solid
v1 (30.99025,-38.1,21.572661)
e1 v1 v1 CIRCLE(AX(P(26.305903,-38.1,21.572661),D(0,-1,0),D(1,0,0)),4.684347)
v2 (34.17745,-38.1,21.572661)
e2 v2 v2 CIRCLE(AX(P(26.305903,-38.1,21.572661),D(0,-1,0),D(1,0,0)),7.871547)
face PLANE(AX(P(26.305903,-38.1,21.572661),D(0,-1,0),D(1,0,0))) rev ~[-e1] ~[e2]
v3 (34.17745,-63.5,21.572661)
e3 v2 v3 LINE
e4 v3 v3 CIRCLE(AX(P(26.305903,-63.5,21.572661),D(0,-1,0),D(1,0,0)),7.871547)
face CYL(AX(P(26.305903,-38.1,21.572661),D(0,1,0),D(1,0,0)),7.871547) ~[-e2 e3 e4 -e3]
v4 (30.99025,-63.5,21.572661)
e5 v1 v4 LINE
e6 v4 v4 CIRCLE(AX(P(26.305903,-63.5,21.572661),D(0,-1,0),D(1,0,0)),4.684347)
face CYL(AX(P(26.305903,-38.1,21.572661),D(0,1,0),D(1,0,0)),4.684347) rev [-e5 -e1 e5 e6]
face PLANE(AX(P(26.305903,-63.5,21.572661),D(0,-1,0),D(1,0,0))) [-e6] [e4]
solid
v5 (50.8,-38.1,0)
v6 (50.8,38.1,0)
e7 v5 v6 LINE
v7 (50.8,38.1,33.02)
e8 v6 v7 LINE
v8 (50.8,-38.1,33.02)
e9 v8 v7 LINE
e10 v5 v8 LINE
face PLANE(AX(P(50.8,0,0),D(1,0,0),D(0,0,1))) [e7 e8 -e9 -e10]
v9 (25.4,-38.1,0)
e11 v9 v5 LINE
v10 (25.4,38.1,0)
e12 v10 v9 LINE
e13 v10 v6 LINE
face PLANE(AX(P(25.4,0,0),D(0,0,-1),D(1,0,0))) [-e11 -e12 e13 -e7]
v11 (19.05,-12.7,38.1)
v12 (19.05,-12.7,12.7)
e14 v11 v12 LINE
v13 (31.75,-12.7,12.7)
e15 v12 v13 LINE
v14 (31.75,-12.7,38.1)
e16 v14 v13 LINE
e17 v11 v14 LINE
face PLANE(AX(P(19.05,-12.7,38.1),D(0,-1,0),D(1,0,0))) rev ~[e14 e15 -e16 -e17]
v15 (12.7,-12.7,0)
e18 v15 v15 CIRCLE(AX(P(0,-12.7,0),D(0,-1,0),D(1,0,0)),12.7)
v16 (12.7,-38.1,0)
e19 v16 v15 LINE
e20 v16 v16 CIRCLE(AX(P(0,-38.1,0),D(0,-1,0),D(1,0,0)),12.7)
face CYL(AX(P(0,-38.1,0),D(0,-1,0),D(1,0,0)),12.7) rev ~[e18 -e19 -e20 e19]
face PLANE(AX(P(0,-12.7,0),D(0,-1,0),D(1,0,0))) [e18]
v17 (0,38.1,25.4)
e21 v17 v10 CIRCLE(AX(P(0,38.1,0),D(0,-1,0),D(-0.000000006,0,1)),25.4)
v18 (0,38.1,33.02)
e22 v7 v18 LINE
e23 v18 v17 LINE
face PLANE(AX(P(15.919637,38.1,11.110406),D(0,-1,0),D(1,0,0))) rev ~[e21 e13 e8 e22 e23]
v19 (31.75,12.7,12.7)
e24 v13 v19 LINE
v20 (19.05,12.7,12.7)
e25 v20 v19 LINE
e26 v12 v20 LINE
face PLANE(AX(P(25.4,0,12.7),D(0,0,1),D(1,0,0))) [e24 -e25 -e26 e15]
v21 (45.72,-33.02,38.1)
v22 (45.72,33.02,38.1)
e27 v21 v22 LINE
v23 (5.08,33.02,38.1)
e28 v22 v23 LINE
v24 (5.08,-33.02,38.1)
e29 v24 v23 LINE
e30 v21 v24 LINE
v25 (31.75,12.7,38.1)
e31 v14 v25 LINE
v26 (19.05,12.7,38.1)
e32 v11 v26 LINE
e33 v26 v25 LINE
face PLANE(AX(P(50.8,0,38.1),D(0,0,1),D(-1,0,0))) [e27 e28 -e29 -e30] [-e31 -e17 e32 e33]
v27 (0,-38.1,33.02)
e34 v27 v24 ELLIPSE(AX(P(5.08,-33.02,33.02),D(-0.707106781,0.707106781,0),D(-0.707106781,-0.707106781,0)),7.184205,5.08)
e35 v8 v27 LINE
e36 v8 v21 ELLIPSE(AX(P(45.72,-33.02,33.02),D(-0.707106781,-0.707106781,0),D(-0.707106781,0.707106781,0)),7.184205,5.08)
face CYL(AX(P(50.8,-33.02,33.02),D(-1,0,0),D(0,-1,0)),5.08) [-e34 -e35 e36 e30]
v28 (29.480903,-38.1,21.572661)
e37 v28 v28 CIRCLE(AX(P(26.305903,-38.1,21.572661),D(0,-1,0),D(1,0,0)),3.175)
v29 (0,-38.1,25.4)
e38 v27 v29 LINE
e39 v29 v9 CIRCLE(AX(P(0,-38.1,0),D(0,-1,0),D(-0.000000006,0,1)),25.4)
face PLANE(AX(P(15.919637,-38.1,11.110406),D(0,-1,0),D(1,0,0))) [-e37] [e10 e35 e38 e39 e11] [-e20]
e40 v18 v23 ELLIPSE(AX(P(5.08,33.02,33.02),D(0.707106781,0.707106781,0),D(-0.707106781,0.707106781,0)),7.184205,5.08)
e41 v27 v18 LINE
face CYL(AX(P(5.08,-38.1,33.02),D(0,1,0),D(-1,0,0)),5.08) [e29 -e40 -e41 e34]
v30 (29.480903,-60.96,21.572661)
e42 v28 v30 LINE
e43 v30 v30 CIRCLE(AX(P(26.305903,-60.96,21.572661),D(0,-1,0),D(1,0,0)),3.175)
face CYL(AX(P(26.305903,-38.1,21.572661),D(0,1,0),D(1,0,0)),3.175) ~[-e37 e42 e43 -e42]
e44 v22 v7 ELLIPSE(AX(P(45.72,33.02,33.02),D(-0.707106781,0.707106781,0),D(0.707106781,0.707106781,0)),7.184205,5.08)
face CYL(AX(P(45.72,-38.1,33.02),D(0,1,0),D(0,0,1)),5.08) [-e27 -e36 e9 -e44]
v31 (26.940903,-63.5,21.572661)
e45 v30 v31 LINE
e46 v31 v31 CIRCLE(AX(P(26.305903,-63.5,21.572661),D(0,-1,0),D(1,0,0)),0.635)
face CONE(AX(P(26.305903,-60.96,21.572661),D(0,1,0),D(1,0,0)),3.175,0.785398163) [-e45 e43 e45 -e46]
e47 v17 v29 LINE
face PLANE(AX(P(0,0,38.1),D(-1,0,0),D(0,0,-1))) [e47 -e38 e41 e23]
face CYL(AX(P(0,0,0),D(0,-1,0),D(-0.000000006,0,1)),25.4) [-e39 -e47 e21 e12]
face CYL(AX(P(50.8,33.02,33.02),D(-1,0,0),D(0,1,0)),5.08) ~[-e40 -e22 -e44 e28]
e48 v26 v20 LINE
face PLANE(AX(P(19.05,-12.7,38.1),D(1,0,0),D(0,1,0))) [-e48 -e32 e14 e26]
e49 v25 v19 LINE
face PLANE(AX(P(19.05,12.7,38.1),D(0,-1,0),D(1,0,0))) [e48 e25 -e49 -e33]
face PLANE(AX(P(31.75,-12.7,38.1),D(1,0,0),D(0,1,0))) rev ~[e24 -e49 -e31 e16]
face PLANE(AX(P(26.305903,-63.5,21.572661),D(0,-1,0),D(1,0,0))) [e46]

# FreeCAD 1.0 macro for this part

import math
import FreeCAD as App
import Part
import Sketcher
Q = App.Units.Quantity


def edges_at(feature, points):
    """Names of the edges that pass closest to the given points."""
    edges = feature.Shape.Edges
    near = lambda p: min(range(len(edges)), key=lambda i: edges[i].distToShape(Part.Vertex(*p))[0])
    return sorted({f"Edge{near(p) + 1}" for p in points})

doc = App.newDocument("Part")
body = doc.addObject("PartDesign::Body", "Body")

sketch1 = body.newObject("Sketcher::SketchObject", "Sketch")
sketch1.AttachmentSupport = (doc.getObject("XZ_Plane"), [""])
sketch1.MapMode = "FlatFace"
sketch1.addGeometry([
    Part.LineSegment(App.Vector(0, 38, 0), App.Vector(0, 25, 0)),
    Part.ArcOfCircle(Part.Circle(App.Vector(0, 0, 0), App.Vector(0, 0, 1), 25), math.radians(90), math.radians(360)),
    Part.LineSegment(App.Vector(25, 0, 0), App.Vector(51, 0, 0)),
    Part.LineSegment(App.Vector(51, 0, 0), App.Vector(51, 38, 0)),
    Part.LineSegment(App.Vector(51, 38, 0), App.Vector(0, 38, 0)),
], False)
sketch1.addConstraint([
    Sketcher.Constraint("Coincident", 0, 2, 1, 1),
    Sketcher.Constraint("Coincident", 1, 2, 2, 1),
    Sketcher.Constraint("Coincident", 2, 2, 3, 1),
    Sketcher.Constraint("Coincident", 3, 2, 4, 1),
    Sketcher.Constraint("Coincident", 4, 2, 0, 1),
    Sketcher.Constraint("Vertical", 0),
    Sketcher.Constraint("Horizontal", 2),
    Sketcher.Constraint("Vertical", 3),
    Sketcher.Constraint("Horizontal", 4),
    Sketcher.Constraint("Coincident", 1, 3, -1, 1),
    Sketcher.Constraint("PointOnObject", 0, 2, -2),
    Sketcher.Constraint("PointOnObject", 1, 2, -1),
    Sketcher.Constraint("Radius", 1, Q("1 in")),
    Sketcher.Constraint("DistanceX", 2, 1, 2, 2, Q("1 in")),
    Sketcher.Constraint("DistanceY", 0, 2, 0, 1, Q("0.5 in")),
])
pad1 = body.newObject("PartDesign::Pad", "Pad")
pad1.Profile = sketch1
pad1.Length = Q("3 in")
pad1.Midplane = True

sketch2 = body.newObject("Sketcher::SketchObject", "Sketch001")
sketch2.AttachmentSupport = (doc.getObject("XY_Plane"), [""])
sketch2.MapMode = "FlatFace"
sketch2.AttachmentOffset = App.Placement(App.Vector(0, 0, 1.5 * 25.4), App.Rotation())
sketch2.addGeometry([
    Part.LineSegment(App.Vector(19, 13, 0), App.Vector(19, -13, 0)),
    Part.LineSegment(App.Vector(19, -13, 0), App.Vector(32, -13, 0)),
    Part.LineSegment(App.Vector(32, -13, 0), App.Vector(32, 13, 0)),
    Part.LineSegment(App.Vector(32, 13, 0), App.Vector(19, 13, 0)),
], False)
sketch2.addConstraint([
    Sketcher.Constraint("Coincident", 0, 2, 1, 1),
    Sketcher.Constraint("Coincident", 1, 2, 2, 1),
    Sketcher.Constraint("Coincident", 2, 2, 3, 1),
    Sketcher.Constraint("Coincident", 3, 2, 0, 1),
    Sketcher.Constraint("Vertical", 0),
    Sketcher.Constraint("Horizontal", 1),
    Sketcher.Constraint("Vertical", 2),
    Sketcher.Constraint("Horizontal", 3),
    Sketcher.Constraint("DistanceY", 0, 2, 0, 1, Q("1 in")),
    Sketcher.Constraint("DistanceX", 1, 1, 1, 2, Q("0.5 in")),
    Sketcher.Constraint("DistanceY", 0, 2, -1, 1, Q("0.5 in")),
    Sketcher.Constraint("DistanceX", -1, 1, 0, 2, Q("0.75 in")),
])
pocket1 = body.newObject("PartDesign::Pocket", "Pocket")
pocket1.Profile = sketch2
pocket1.Length = Q("1 in")
doc.recompute()

fillet = body.newObject("PartDesign::Fillet", "Fillet")
fillet.Base = (pocket1, edges_at(pocket1, [
    (25.4, -38.1, 38.1),
    (50.8, 0, 38.1),
    (25.4, 38.1, 38.1),
    (0, 0, 38.1),
]))
fillet.Radius = Q("0.2 in")

sketch3 = body.newObject("Sketcher::SketchObject", "Sketch002")
sketch3.AttachmentSupport = (doc.getObject("XZ_Plane"), [""])
sketch3.MapMode = "FlatFace"
sketch3.AttachmentOffset = App.Placement(App.Vector(0, 0, 1.5 * 25.4), App.Rotation())
sketch3.addGeometry(Part.Circle(App.Vector(0, 0, 0), App.Vector(0, 0, 1), 13), False)
sketch3.addConstraint([
    Sketcher.Constraint("Coincident", 0, 3, -1, 1),
    Sketcher.Constraint("Diameter", 0, Q("1 in")),
])
pocket2 = body.newObject("PartDesign::Pocket", "Pocket001")
pocket2.Profile = sketch3
pocket2.Length = Q("1 in")

sketch4 = body.newObject("Sketcher::SketchObject", "Sketch003")
sketch4.AttachmentSupport = (doc.getObject("XZ_Plane"), [""])
sketch4.MapMode = "FlatFace"
sketch4.AttachmentOffset = App.Placement(App.Vector(0, 0, 1.5 * 25.4), App.Rotation())
sketch4.addGeometry(Part.Circle(App.Vector(26.3, 21.6, 0), App.Vector(0, 0, 1), 3.2), False)
sketch4.addConstraint([
    Sketcher.Constraint("Diameter", 0, Q("0.25 in")),
    Sketcher.Constraint("DistanceY", -1, 1, 0, 3, Q("21.572661 mm")),
    Sketcher.Constraint("DistanceX", -1, 1, 0, 3, Q("26.305903 mm")),
])
pad2 = body.newObject("PartDesign::Pad", "Pad001")
pad2.Profile = sketch4
pad2.Length = Q("1 in")
doc.recompute()

chamfer = body.newObject("PartDesign::Chamfer", "Chamfer")
chamfer.Base = (pad2, edges_at(pad2, [(23.131, -63.5, 21.573)]))
chamfer.Size = Q("0.1 in")
body2 = doc.addObject("PartDesign::Body", "Body001")

sketch5 = body2.newObject("Sketcher::SketchObject", "Sketch004")
sketch5.AttachmentSupport = (doc.getObject("XZ_Plane001"), [""])
sketch5.MapMode = "FlatFace"
sketch5.AttachmentOffset = App.Placement(App.Vector(0, 0, 1.5 * 25.4), App.Rotation())
sketch5.addGeometry([
    Part.Circle(App.Vector(26.3, 21.6, 0), App.Vector(0, 0, 1), 7.9),
    Part.Circle(App.Vector(26.3, 21.6, 0), App.Vector(0, 0, 1), 4.7),
], False)
sketch5.addConstraint([
    Sketcher.Constraint("Coincident", 1, 3, 0, 3),
    Sketcher.Constraint("Diameter", 0, Q("15.743094 mm")),
    Sketcher.Constraint("Diameter", 1, Q("9.368694 mm")),
    Sketcher.Constraint("DistanceY", -1, 1, 0, 3, Q("21.572661 mm")),
    Sketcher.Constraint("DistanceX", -1, 1, 0, 3, Q("26.305903 mm")),
])
pad3 = body2.newObject("PartDesign::Pad", "Pad002")
pad3.Profile = sketch5
pad3.Length = Q("1 in")

doc.recompute()
